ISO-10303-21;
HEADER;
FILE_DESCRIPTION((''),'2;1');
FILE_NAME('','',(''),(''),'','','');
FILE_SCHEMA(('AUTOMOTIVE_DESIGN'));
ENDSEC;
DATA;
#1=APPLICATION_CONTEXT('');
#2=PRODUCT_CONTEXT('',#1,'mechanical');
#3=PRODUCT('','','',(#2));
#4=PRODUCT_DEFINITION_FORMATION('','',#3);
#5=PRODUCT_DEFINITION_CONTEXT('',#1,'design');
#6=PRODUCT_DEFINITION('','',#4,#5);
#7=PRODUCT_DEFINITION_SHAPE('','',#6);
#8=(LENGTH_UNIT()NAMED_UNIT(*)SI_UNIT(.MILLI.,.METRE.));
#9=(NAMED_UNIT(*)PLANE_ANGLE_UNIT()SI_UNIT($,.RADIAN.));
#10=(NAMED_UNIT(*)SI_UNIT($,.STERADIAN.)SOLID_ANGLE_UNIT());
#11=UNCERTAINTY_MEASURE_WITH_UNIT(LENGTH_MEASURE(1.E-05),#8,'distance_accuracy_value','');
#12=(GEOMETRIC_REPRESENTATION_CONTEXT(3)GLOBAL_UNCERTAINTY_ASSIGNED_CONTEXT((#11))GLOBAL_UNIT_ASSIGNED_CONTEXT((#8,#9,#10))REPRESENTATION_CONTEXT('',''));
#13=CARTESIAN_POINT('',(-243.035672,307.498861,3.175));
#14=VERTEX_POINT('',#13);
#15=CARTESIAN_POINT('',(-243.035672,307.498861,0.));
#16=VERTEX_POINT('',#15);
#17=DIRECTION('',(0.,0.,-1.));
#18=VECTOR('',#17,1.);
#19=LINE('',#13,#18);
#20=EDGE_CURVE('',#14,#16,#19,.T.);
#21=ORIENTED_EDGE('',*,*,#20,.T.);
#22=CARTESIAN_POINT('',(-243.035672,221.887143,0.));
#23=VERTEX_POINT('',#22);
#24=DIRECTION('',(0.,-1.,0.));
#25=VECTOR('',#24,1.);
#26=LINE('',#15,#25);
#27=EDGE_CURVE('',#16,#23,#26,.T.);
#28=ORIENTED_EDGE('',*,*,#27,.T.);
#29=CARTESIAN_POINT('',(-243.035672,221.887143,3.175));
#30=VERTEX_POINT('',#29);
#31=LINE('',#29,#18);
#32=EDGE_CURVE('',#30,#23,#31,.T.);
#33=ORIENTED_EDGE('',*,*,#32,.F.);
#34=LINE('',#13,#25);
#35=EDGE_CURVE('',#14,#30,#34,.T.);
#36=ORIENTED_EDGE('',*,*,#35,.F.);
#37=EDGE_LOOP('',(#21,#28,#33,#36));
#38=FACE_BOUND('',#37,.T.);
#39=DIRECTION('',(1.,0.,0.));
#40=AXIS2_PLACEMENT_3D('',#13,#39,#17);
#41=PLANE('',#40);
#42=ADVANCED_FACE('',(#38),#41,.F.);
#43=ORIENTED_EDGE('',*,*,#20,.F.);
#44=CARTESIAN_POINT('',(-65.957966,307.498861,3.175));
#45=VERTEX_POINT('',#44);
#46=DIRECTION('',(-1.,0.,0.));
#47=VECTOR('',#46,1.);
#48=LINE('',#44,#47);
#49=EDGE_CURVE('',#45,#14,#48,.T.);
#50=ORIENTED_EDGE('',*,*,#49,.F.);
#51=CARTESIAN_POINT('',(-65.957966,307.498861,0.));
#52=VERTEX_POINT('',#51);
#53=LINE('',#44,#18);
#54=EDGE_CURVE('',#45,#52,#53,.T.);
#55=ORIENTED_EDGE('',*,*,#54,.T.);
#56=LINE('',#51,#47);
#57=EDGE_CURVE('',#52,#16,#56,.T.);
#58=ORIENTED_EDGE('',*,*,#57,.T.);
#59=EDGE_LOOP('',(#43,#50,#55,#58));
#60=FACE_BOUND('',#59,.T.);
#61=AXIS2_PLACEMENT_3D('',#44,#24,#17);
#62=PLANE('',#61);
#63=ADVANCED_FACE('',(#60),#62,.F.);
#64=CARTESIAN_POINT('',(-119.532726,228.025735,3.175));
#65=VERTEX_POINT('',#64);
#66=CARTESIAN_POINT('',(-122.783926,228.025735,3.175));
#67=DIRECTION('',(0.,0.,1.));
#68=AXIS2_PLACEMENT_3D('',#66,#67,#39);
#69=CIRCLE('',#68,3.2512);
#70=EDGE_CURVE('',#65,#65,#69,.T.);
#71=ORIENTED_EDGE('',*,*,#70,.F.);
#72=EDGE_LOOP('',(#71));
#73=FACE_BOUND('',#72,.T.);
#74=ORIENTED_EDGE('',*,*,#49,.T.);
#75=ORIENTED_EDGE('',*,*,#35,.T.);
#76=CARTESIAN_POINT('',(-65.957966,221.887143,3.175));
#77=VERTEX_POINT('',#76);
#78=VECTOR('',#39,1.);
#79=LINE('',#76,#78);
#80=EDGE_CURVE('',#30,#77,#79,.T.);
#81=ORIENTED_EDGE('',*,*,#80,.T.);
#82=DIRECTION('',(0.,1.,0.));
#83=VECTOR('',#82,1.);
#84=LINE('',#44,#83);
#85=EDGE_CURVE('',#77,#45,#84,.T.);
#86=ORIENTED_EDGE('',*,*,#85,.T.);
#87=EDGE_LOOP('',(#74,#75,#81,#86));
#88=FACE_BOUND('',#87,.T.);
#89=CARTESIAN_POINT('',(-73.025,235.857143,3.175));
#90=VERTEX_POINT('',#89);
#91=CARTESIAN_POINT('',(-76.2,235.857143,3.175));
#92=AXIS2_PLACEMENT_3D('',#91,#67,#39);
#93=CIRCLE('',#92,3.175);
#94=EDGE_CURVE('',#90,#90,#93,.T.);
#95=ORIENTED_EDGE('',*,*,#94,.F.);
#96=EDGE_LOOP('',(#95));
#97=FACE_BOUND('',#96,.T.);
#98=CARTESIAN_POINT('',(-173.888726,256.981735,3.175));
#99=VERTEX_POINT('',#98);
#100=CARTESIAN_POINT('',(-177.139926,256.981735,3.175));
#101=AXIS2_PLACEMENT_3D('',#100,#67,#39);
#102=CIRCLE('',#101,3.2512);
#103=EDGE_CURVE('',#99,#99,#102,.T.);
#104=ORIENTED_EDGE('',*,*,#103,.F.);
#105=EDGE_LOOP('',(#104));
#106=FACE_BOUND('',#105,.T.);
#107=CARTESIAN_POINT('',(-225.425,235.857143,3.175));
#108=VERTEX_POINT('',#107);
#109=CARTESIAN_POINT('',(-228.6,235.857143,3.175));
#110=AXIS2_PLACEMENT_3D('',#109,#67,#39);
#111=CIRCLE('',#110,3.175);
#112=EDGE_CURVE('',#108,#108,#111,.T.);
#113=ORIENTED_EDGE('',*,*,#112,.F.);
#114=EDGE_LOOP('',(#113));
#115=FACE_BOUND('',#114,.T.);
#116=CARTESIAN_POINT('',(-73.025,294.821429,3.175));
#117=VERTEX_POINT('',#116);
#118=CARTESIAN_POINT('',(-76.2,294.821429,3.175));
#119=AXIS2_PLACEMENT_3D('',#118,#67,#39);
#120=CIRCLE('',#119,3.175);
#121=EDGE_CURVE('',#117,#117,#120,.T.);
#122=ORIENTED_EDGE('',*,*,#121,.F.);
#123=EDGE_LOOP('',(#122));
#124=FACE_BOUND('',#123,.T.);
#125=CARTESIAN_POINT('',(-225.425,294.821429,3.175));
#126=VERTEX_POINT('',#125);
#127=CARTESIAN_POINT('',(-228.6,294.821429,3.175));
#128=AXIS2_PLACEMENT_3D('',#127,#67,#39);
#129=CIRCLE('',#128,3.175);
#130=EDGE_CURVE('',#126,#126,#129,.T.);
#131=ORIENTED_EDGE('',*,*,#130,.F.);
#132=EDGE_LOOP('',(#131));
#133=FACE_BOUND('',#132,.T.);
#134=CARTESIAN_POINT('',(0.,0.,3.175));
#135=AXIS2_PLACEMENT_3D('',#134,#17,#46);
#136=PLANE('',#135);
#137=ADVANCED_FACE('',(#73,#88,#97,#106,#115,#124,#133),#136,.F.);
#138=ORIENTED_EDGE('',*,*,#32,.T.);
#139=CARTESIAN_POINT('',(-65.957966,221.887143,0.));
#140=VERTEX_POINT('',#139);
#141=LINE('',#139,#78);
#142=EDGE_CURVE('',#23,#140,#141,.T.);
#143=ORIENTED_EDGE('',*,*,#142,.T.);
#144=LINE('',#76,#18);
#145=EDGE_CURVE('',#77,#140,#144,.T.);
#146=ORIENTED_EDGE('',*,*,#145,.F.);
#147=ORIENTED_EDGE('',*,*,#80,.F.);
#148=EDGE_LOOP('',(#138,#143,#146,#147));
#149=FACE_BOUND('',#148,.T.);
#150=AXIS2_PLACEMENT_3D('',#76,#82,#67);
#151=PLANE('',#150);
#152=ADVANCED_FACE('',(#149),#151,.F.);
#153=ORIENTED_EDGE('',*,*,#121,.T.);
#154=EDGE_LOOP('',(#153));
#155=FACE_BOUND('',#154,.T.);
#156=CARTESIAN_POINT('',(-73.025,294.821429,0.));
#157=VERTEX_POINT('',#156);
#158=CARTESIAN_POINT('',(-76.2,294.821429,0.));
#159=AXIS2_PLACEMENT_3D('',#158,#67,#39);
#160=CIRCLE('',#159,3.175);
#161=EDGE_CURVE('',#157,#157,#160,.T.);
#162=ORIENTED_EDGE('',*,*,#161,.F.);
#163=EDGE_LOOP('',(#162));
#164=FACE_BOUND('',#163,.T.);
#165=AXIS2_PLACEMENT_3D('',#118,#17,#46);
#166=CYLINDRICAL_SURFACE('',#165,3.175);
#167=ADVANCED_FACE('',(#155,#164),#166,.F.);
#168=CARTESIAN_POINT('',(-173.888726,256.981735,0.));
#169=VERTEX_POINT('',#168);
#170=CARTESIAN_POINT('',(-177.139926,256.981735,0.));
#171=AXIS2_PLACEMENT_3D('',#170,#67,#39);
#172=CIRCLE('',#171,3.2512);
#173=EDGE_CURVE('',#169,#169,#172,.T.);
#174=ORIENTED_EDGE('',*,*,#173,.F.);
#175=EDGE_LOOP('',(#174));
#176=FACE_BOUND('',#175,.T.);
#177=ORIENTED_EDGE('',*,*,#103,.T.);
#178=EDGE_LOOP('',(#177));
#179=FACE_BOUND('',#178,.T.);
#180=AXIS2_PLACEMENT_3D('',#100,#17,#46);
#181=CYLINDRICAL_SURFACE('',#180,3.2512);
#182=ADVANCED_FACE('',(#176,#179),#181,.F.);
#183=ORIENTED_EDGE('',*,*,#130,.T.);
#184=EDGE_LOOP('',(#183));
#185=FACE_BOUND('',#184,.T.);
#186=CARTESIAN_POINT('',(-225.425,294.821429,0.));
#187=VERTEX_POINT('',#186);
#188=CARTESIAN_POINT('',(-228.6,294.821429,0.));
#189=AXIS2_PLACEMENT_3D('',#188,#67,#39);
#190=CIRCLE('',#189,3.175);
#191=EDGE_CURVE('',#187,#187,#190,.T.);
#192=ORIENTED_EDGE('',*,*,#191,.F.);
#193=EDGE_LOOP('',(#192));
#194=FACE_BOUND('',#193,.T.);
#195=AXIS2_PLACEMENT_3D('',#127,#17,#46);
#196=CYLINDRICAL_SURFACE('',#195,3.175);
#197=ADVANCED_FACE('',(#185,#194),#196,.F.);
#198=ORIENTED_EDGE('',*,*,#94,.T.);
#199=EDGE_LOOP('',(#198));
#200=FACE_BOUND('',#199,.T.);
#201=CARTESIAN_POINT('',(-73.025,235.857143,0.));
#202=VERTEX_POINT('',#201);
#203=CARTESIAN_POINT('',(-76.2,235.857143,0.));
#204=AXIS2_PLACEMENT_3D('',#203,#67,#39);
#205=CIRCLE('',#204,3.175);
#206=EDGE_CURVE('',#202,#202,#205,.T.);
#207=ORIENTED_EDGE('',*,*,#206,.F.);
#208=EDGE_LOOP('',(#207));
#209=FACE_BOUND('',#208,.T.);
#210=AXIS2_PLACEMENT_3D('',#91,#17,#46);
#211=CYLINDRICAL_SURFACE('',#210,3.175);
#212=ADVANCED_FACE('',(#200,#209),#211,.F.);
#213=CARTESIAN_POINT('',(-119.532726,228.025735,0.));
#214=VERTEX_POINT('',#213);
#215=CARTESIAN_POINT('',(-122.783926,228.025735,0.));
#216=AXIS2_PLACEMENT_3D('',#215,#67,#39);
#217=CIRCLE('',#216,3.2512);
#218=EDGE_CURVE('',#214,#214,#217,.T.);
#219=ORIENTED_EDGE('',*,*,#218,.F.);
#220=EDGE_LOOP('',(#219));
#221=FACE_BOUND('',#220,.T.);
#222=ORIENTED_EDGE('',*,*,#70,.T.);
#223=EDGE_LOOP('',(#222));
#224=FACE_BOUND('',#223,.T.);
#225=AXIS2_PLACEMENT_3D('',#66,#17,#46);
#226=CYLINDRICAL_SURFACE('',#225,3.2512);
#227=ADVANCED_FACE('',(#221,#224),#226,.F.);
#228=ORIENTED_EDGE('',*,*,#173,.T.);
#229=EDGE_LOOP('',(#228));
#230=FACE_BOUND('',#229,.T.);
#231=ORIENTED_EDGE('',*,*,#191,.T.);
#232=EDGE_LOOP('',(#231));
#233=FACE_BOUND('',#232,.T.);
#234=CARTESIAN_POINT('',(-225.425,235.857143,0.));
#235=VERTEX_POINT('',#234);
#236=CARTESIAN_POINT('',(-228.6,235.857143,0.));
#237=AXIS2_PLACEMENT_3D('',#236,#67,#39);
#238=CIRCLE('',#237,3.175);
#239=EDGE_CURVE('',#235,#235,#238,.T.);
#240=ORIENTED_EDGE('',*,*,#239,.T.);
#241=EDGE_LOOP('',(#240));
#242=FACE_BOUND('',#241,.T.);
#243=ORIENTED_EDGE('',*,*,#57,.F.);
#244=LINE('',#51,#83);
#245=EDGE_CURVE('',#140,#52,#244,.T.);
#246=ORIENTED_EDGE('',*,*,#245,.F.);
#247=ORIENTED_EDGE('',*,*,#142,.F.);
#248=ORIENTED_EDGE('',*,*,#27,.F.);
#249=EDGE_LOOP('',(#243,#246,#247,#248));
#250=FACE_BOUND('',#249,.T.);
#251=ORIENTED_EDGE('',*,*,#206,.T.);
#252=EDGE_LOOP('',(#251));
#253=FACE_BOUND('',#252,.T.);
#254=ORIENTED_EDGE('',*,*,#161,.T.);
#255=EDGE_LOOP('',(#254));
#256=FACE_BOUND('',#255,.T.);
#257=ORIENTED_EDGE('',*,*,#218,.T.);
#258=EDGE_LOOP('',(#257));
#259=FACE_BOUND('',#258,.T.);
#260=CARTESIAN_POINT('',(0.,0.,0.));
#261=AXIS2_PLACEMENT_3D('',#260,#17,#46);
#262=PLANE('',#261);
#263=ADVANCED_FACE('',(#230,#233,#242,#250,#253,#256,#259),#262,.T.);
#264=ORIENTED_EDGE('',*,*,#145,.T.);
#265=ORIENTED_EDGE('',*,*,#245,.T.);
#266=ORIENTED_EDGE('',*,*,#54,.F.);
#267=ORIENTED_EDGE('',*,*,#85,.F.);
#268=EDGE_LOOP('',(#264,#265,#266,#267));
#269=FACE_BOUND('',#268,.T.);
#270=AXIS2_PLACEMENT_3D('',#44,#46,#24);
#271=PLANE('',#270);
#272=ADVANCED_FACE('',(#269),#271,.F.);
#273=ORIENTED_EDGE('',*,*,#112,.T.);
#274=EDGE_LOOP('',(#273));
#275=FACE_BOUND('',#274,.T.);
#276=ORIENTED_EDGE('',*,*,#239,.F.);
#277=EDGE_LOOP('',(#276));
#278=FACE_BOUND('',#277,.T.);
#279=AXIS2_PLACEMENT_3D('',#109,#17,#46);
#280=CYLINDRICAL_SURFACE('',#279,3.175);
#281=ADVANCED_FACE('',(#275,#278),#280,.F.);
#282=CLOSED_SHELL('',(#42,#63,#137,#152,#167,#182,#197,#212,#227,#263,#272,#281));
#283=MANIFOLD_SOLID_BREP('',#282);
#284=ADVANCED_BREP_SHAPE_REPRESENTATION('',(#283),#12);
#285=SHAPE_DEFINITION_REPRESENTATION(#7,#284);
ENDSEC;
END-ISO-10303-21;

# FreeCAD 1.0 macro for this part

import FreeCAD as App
import Part
import Sketcher

V = App.Vector
Q = App.Units.Quantity

doc = App.newDocument("Part")
params = doc.addObject("Spreadsheet::Sheet", "Params")
for row, (alias, value) in enumerate([
    ("sketch1_diameter", "0.25 in"),
    ("sketch1_diameter2", "0.256 in"),
    ("pad1_length", "0.125 in"),
], start=1):
    params.set(f"A{row}", alias)
    params.set(f"B{row}", "=" + value)
    params.setAlias(f"B{row}", alias)

body = doc.addObject("PartDesign::Body", "Body")

sketch1 = body.newObject("Sketcher::SketchObject", "Sketch")
sketch1.AttachmentSupport = (doc.getObject("XY_Plane"), [""])
sketch1.MapMode = "FlatFace"
sketch1.addGeometry([
    Part.LineSegment(V(-243, 307.5, 0), V(-243, 221.9, 0)),
    Part.LineSegment(V(-243, 221.9, 0), V(-66, 221.9, 0)),
    Part.LineSegment(V(-66, 221.9, 0), V(-66, 307.5, 0)),
    Part.LineSegment(V(-66, 307.5, 0), V(-243, 307.5, 0)),
    Part.Circle(V(-228.6, 235.9, 0), V(0, 0, 1), 3.2),
    Part.Circle(V(-177.1, 257, 0), V(0, 0, 1), 3.3),
    Part.Circle(V(-122.8, 228, 0), V(0, 0, 1), 3.3),
    Part.Circle(V(-76.2, 235.9, 0), V(0, 0, 1), 3.2),
    Part.Circle(V(-228.6, 294.8, 0), V(0, 0, 1), 3.2),
    Part.Circle(V(-76.2, 294.8, 0), V(0, 0, 1), 3.2),
], False)
sketch1.addConstraint([
    Sketcher.Constraint("Coincident", 0, 2, 1, 1),
    Sketcher.Constraint("Coincident", 1, 2, 2, 1),
    Sketcher.Constraint("Coincident", 2, 2, 3, 1),
    Sketcher.Constraint("Coincident", 3, 2, 0, 1),
    Sketcher.Constraint("Vertical", 0),
    Sketcher.Constraint("Horizontal", 1),
    Sketcher.Constraint("Vertical", 2),
    Sketcher.Constraint("Horizontal", 3),
    Sketcher.Constraint("Equal", 5, 6),
    Sketcher.Constraint("Equal", 4, 7),
    Sketcher.Constraint("Equal", 7, 8),
    Sketcher.Constraint("Equal", 8, 9),
    Sketcher.Constraint("Horizontal", 4, 3, 7, 3),
    Sketcher.Constraint("Horizontal", 8, 3, 9, 3),
    Sketcher.Constraint("Vertical", 4, 3, 8, 3),
    Sketcher.Constraint("Vertical", 7, 3, 9, 3),
    Sketcher.Constraint("Diameter", 4, Q("0.25 in")),
    Sketcher.Constraint("Diameter", 5, Q("0.256 in")),
    Sketcher.Constraint("DistanceX", 4, 3, -1, 1, Q("9 in")),
    Sketcher.Constraint("DistanceX", 7, 3, -1, 1, Q("3 in")),
    Sketcher.Constraint("DistanceX", 5, 3, 6, 3, Q("2.14 in")),
    Sketcher.Constraint("DistanceY", 6, 3, 5, 3, Q("1.14 in")),
    Sketcher.Constraint("DistanceY", 0, 2, 4, 3, Q("0.55 in")),
    Sketcher.Constraint("DistanceY", 0, 2, 0, 1, 85.611719),
    Sketcher.Constraint("DistanceX", 1, 1, 1, 2, 177.077705),
    Sketcher.Constraint("DistanceY", -1, 1, 8, 3, 294.821429),
    Sketcher.Constraint("DistanceX", 0, 2, -1, 1, 243.035672),
    Sketcher.Constraint("DistanceY", -1, 1, 2, 2, 307.498861),
    Sketcher.Constraint("DistanceX", 6, 3, 1, 2, 56.82596),
    Sketcher.Constraint("DistanceY", -1, 1, 5, 3, 256.981735),
])
sketch1.setExpression("Constraints[16]", "Params.sketch1_diameter")
sketch1.setExpression("Constraints[17]", "Params.sketch1_diameter2")
pad1 = body.newObject("PartDesign::Pad", "Pad")
pad1.Profile = sketch1
pad1.setExpression("Length", "Params.pad1_length")

doc.recompute()
